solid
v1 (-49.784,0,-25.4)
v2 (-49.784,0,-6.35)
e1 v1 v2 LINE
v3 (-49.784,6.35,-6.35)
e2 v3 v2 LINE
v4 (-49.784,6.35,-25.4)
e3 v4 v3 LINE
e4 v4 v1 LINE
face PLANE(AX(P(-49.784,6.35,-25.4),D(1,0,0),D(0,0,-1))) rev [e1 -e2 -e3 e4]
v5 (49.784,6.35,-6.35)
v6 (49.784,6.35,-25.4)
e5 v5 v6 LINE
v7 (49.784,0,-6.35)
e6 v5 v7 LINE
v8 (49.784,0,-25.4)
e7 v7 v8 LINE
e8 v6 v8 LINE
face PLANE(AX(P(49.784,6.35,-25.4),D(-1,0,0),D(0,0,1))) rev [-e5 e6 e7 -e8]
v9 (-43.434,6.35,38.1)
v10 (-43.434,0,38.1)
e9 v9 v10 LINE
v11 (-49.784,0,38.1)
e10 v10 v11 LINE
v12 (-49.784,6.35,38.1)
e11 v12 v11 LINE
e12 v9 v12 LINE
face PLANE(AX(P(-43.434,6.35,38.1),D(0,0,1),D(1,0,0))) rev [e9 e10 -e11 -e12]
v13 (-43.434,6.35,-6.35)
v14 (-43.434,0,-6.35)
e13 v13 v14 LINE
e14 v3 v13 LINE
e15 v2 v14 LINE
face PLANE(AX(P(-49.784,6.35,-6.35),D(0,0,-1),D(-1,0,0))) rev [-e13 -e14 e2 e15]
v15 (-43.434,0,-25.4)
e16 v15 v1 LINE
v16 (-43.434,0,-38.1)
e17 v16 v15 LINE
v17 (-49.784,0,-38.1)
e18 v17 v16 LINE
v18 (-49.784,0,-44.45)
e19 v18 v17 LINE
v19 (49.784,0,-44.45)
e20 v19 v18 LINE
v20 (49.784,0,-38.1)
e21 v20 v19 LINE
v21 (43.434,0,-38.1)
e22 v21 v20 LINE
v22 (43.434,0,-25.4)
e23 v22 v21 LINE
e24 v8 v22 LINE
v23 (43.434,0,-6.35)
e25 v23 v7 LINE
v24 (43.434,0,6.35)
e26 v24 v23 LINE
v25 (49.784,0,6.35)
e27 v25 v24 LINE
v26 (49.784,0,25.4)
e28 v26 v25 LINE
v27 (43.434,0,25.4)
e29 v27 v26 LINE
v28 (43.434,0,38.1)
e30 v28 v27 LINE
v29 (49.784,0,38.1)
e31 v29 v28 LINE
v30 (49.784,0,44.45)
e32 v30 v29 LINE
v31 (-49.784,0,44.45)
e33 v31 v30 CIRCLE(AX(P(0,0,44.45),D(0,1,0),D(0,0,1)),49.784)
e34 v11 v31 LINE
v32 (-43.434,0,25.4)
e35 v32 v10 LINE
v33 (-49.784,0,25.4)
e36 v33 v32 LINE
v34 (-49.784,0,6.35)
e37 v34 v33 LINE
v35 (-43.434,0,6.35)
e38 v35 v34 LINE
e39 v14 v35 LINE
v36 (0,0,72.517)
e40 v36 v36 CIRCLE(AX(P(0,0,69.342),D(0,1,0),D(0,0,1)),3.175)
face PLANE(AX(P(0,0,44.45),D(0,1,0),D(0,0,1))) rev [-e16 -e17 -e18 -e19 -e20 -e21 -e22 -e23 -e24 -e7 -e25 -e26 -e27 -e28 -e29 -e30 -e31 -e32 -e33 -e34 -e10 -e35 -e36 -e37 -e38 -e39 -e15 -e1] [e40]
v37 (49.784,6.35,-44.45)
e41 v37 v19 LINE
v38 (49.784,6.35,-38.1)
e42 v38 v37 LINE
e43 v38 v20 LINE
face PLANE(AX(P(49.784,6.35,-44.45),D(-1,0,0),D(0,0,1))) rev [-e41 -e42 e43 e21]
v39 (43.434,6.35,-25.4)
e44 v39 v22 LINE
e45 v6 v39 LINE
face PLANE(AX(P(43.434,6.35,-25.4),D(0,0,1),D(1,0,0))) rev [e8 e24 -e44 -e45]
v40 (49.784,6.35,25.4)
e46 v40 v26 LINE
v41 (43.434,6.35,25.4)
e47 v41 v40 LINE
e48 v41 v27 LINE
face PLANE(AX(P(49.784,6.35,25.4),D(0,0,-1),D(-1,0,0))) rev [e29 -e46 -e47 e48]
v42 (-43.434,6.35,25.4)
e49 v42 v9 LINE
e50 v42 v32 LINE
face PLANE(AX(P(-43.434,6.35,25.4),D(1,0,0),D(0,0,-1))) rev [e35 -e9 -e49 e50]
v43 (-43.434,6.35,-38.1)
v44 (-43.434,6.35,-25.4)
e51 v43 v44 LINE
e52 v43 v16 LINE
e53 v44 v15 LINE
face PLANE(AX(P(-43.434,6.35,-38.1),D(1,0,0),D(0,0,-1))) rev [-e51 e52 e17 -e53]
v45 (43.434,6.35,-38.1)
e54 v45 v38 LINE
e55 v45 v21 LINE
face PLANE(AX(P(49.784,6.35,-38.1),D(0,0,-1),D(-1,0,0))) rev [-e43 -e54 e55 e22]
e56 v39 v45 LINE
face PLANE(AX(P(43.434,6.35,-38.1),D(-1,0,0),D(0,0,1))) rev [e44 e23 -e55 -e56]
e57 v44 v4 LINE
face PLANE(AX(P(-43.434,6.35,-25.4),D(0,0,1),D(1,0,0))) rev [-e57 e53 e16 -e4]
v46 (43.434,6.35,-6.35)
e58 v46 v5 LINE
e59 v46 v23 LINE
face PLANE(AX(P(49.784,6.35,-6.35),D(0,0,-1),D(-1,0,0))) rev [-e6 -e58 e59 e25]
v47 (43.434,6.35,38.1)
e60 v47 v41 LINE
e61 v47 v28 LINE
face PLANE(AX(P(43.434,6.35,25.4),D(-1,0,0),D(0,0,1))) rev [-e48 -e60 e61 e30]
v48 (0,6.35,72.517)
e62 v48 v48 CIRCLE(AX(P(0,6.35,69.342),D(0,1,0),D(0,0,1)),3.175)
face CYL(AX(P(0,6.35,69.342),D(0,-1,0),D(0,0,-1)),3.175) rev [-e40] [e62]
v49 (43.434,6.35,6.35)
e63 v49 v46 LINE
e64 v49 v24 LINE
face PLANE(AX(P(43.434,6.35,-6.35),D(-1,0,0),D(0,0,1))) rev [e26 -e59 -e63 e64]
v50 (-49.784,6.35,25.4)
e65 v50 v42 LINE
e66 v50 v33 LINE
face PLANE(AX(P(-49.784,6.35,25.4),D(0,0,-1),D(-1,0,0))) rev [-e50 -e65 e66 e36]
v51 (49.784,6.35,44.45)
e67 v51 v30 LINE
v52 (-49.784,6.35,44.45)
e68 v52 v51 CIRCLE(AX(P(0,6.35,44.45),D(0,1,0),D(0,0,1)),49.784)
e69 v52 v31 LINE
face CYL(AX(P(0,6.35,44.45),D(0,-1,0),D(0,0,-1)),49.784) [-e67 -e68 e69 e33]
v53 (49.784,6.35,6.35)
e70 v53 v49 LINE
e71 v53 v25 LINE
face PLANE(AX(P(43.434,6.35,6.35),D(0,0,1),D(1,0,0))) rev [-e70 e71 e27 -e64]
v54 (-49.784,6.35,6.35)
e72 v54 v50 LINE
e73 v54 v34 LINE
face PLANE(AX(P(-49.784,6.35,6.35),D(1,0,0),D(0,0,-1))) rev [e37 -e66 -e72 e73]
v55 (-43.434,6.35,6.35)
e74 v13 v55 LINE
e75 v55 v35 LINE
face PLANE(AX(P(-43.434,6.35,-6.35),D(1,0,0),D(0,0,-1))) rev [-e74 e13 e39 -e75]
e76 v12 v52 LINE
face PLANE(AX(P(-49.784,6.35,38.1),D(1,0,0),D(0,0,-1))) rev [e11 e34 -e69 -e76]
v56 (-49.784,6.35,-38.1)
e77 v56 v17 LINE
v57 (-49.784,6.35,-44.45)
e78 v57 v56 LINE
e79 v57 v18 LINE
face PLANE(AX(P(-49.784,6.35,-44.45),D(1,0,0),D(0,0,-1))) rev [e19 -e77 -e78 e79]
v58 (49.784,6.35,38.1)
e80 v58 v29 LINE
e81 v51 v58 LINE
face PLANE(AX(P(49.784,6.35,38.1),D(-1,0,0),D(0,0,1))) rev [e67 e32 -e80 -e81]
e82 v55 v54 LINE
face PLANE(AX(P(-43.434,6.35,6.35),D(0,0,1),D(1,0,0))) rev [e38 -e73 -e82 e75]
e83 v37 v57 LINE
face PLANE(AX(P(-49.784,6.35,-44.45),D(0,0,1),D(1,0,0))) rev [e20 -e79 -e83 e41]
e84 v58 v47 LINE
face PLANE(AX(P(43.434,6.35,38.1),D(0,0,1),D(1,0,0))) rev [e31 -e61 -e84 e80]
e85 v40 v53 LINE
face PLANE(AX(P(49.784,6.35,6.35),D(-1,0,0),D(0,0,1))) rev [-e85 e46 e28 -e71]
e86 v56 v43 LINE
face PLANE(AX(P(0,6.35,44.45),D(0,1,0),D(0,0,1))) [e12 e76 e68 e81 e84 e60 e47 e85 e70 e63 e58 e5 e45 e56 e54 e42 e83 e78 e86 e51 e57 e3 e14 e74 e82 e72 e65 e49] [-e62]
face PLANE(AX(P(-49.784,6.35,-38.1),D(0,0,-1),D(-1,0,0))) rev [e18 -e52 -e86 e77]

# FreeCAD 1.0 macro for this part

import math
import FreeCAD as App
import Part
import Sketcher
Q = App.Units.Quantity

doc = App.newDocument("Part")
body = doc.addObject("PartDesign::Body", "Body")

# Sketch on XZ plane
sketch1 = body.newObject("Sketcher::SketchObject", "Sketch")
sketch1.AttachmentSupport = (doc.getObject("XZ_Plane"), [""])
sketch1.MapMode = "FlatFace"
sketch1.addGeometry([
    Part.LineSegment(App.Vector(49.8, -44.5, 0), App.Vector(-49.8, -44.5, 0)),  # 0
    Part.LineSegment(App.Vector(-49.8, -44.5, 0), App.Vector(-49.8, -38.1, 0)),  # 1
    Part.LineSegment(App.Vector(-49.8, -38.1, 0), App.Vector(-43.4, -38.1, 0)),  # 2
    Part.LineSegment(App.Vector(-43.4, -38.1, 0), App.Vector(-43.4, -25.4, 0)),  # 3
    Part.LineSegment(App.Vector(-43.4, -25.4, 0), App.Vector(-49.8, -25.4, 0)),  # 4
    Part.LineSegment(App.Vector(-49.8, -25.4, 0), App.Vector(-49.8, -6.3, 0)),  # 5
    Part.LineSegment(App.Vector(-49.8, -6.3, 0), App.Vector(-43.4, -6.3, 0)),  # 6
    Part.LineSegment(App.Vector(-43.4, -6.3, 0), App.Vector(-43.4, 6.3, 0)),  # 7
    Part.LineSegment(App.Vector(-43.4, 6.3, 0), App.Vector(-49.8, 6.3, 0)),  # 8
    Part.LineSegment(App.Vector(-49.8, 6.3, 0), App.Vector(-49.8, 25.4, 0)),  # 9
    Part.LineSegment(App.Vector(-49.8, 25.4, 0), App.Vector(-43.4, 25.4, 0)),  # 10
    Part.LineSegment(App.Vector(-43.4, 25.4, 0), App.Vector(-43.4, 38.1, 0)),  # 11
    Part.LineSegment(App.Vector(-43.4, 38.1, 0), App.Vector(-49.8, 38.1, 0)),  # 12
    Part.LineSegment(App.Vector(-49.8, 38.1, 0), App.Vector(-49.8, 44.5, 0)),  # 13
    Part.ArcOfCircle(Part.Circle(App.Vector(0, 44.5, 0), App.Vector(0, 0, 1), 49.8), math.radians(0), math.radians(180)),  # 14
    Part.LineSegment(App.Vector(49.8, 44.5, 0), App.Vector(49.8, 38.1, 0)),  # 15
    Part.LineSegment(App.Vector(49.8, 38.1, 0), App.Vector(43.4, 38.1, 0)),  # 16
    Part.LineSegment(App.Vector(43.4, 38.1, 0), App.Vector(43.4, 25.4, 0)),  # 17
    Part.LineSegment(App.Vector(43.4, 25.4, 0), App.Vector(49.8, 25.4, 0)),  # 18
    Part.LineSegment(App.Vector(49.8, 25.4, 0), App.Vector(49.8, 6.3, 0)),  # 19
    Part.LineSegment(App.Vector(49.8, 6.3, 0), App.Vector(43.4, 6.3, 0)),  # 20
    Part.LineSegment(App.Vector(43.4, 6.3, 0), App.Vector(43.4, -6.3, 0)),  # 21
    Part.LineSegment(App.Vector(43.4, -6.3, 0), App.Vector(49.8, -6.3, 0)),  # 22
    Part.LineSegment(App.Vector(49.8, -6.3, 0), App.Vector(49.8, -25.4, 0)),  # 23
    Part.LineSegment(App.Vector(49.8, -25.4, 0), App.Vector(43.4, -25.4, 0)),  # 24
    Part.LineSegment(App.Vector(43.4, -25.4, 0), App.Vector(43.4, -38.1, 0)),  # 25
    Part.LineSegment(App.Vector(43.4, -38.1, 0), App.Vector(49.8, -38.1, 0)),  # 26
    Part.LineSegment(App.Vector(49.8, -38.1, 0), App.Vector(49.8, -44.5, 0)),  # 27
    Part.Circle(App.Vector(0, 69.3, 0), App.Vector(0, 0, 1), 3.2),  # 28
], False)
sketch1.addConstraint([
    Sketcher.Constraint("Coincident", 0, 2, 1, 1),
    Sketcher.Constraint("Coincident", 1, 2, 2, 1),
    Sketcher.Constraint("Coincident", 2, 2, 3, 1),
    Sketcher.Constraint("Coincident", 3, 2, 4, 1),
    Sketcher.Constraint("Coincident", 4, 2, 5, 1),
    Sketcher.Constraint("Coincident", 5, 2, 6, 1),
    Sketcher.Constraint("Coincident", 6, 2, 7, 1),
    Sketcher.Constraint("Coincident", 7, 2, 8, 1),
    Sketcher.Constraint("Coincident", 8, 2, 9, 1),
    Sketcher.Constraint("Coincident", 9, 2, 10, 1),
    Sketcher.Constraint("Coincident", 10, 2, 11, 1),
    Sketcher.Constraint("Coincident", 11, 2, 12, 1),
    Sketcher.Constraint("Coincident", 12, 2, 13, 1),
    Sketcher.Constraint("Tangent", 13, 2, 14, 2),
    Sketcher.Constraint("Tangent", 14, 1, 15, 1),
    Sketcher.Constraint("Coincident", 15, 2, 16, 1),
    Sketcher.Constraint("Coincident", 16, 2, 17, 1),
    Sketcher.Constraint("Coincident", 17, 2, 18, 1),
    Sketcher.Constraint("Coincident", 18, 2, 19, 1),
    Sketcher.Constraint("Coincident", 19, 2, 20, 1),
    Sketcher.Constraint("Coincident", 20, 2, 21, 1),
    Sketcher.Constraint("Coincident", 21, 2, 22, 1),
    Sketcher.Constraint("Coincident", 22, 2, 23, 1),
    Sketcher.Constraint("Coincident", 23, 2, 24, 1),
    Sketcher.Constraint("Coincident", 24, 2, 25, 1),
    Sketcher.Constraint("Coincident", 25, 2, 26, 1),
    Sketcher.Constraint("Coincident", 26, 2, 27, 1),
    Sketcher.Constraint("Coincident", 27, 2, 0, 1),
    Sketcher.Constraint("Horizontal", 0),
    Sketcher.Constraint("Vertical", 1),
    Sketcher.Constraint("Horizontal", 2),
    Sketcher.Constraint("Vertical", 3),
    Sketcher.Constraint("Horizontal", 4),
    Sketcher.Constraint("Vertical", 5),
    Sketcher.Constraint("Horizontal", 6),
    Sketcher.Constraint("Vertical", 7),
    Sketcher.Constraint("Horizontal", 8),
    Sketcher.Constraint("Vertical", 9),
    Sketcher.Constraint("Horizontal", 10),
    Sketcher.Constraint("Vertical", 11),
    Sketcher.Constraint("Horizontal", 12),
    Sketcher.Constraint("Vertical", 13),
    Sketcher.Constraint("Vertical", 15),
    Sketcher.Constraint("Horizontal", 16),
    Sketcher.Constraint("Vertical", 17),
    Sketcher.Constraint("Horizontal", 18),
    Sketcher.Constraint("Vertical", 19),
    Sketcher.Constraint("Horizontal", 20),
    Sketcher.Constraint("Vertical", 21),
    Sketcher.Constraint("Horizontal", 22),
    Sketcher.Constraint("Vertical", 23),
    Sketcher.Constraint("Horizontal", 24),
    Sketcher.Constraint("Vertical", 25),
    Sketcher.Constraint("Horizontal", 26),
    Sketcher.Constraint("Vertical", 27),
    Sketcher.Constraint("Symmetric", 0, 2, 14, 1, -1, 1),
    Sketcher.Constraint("Symmetric", 2, 2, 16, 2, -1, 1),
    Sketcher.Constraint("Symmetric", 4, 2, 18, 2, -1, 1),
    Sketcher.Constraint("Symmetric", 6, 2, 20, 2, -1, 1),
    Sketcher.Constraint("Symmetric", 8, 2, 22, 2, -1, 1),
    Sketcher.Constraint("Symmetric", 10, 2, 24, 2, -1, 1),
    Sketcher.Constraint("Symmetric", 12, 2, 26, 2, -1, 1),
    Sketcher.Constraint("Symmetric", 12, 2, 15, 2, -2),
    Sketcher.Constraint("Symmetric", 10, 2, 17, 2, -2),
    Sketcher.Constraint("Symmetric", 8, 2, 19, 2, -2),
    Sketcher.Constraint("PointOnObject", 28, 3, -2),
    Sketcher.Constraint("Vertical", 1, 2, 4, 2),
    Sketcher.Constraint("Vertical", 3, 2, 6, 2),
    Sketcher.Constraint("Equal", 26, 1),
    Sketcher.Constraint("Equal", 3, 7),
    Sketcher.Constraint("Diameter", 28, Q("0.25 in")),
    Sketcher.Constraint("Radius", 14, Q("1.96 in")),
    Sketcher.Constraint("DistanceY", 3, 1, 3, 2, Q("0.5 in")),
    Sketcher.Constraint("DistanceY", 3, 2, -1, 1, Q("1 in")),
    Sketcher.Constraint("DistanceX", 2, 1, 2, 2, Q("0.25 in")),
    Sketcher.Constraint("DistanceY", -1, 1, 28, 3, Q("2.73 in")),
])
pad1 = body.newObject("PartDesign::Pad", "Pad")
pad1.Profile = sketch1
pad1.Length = Q("0.25 in")
pad1.Reversed = True

doc.recompute()
